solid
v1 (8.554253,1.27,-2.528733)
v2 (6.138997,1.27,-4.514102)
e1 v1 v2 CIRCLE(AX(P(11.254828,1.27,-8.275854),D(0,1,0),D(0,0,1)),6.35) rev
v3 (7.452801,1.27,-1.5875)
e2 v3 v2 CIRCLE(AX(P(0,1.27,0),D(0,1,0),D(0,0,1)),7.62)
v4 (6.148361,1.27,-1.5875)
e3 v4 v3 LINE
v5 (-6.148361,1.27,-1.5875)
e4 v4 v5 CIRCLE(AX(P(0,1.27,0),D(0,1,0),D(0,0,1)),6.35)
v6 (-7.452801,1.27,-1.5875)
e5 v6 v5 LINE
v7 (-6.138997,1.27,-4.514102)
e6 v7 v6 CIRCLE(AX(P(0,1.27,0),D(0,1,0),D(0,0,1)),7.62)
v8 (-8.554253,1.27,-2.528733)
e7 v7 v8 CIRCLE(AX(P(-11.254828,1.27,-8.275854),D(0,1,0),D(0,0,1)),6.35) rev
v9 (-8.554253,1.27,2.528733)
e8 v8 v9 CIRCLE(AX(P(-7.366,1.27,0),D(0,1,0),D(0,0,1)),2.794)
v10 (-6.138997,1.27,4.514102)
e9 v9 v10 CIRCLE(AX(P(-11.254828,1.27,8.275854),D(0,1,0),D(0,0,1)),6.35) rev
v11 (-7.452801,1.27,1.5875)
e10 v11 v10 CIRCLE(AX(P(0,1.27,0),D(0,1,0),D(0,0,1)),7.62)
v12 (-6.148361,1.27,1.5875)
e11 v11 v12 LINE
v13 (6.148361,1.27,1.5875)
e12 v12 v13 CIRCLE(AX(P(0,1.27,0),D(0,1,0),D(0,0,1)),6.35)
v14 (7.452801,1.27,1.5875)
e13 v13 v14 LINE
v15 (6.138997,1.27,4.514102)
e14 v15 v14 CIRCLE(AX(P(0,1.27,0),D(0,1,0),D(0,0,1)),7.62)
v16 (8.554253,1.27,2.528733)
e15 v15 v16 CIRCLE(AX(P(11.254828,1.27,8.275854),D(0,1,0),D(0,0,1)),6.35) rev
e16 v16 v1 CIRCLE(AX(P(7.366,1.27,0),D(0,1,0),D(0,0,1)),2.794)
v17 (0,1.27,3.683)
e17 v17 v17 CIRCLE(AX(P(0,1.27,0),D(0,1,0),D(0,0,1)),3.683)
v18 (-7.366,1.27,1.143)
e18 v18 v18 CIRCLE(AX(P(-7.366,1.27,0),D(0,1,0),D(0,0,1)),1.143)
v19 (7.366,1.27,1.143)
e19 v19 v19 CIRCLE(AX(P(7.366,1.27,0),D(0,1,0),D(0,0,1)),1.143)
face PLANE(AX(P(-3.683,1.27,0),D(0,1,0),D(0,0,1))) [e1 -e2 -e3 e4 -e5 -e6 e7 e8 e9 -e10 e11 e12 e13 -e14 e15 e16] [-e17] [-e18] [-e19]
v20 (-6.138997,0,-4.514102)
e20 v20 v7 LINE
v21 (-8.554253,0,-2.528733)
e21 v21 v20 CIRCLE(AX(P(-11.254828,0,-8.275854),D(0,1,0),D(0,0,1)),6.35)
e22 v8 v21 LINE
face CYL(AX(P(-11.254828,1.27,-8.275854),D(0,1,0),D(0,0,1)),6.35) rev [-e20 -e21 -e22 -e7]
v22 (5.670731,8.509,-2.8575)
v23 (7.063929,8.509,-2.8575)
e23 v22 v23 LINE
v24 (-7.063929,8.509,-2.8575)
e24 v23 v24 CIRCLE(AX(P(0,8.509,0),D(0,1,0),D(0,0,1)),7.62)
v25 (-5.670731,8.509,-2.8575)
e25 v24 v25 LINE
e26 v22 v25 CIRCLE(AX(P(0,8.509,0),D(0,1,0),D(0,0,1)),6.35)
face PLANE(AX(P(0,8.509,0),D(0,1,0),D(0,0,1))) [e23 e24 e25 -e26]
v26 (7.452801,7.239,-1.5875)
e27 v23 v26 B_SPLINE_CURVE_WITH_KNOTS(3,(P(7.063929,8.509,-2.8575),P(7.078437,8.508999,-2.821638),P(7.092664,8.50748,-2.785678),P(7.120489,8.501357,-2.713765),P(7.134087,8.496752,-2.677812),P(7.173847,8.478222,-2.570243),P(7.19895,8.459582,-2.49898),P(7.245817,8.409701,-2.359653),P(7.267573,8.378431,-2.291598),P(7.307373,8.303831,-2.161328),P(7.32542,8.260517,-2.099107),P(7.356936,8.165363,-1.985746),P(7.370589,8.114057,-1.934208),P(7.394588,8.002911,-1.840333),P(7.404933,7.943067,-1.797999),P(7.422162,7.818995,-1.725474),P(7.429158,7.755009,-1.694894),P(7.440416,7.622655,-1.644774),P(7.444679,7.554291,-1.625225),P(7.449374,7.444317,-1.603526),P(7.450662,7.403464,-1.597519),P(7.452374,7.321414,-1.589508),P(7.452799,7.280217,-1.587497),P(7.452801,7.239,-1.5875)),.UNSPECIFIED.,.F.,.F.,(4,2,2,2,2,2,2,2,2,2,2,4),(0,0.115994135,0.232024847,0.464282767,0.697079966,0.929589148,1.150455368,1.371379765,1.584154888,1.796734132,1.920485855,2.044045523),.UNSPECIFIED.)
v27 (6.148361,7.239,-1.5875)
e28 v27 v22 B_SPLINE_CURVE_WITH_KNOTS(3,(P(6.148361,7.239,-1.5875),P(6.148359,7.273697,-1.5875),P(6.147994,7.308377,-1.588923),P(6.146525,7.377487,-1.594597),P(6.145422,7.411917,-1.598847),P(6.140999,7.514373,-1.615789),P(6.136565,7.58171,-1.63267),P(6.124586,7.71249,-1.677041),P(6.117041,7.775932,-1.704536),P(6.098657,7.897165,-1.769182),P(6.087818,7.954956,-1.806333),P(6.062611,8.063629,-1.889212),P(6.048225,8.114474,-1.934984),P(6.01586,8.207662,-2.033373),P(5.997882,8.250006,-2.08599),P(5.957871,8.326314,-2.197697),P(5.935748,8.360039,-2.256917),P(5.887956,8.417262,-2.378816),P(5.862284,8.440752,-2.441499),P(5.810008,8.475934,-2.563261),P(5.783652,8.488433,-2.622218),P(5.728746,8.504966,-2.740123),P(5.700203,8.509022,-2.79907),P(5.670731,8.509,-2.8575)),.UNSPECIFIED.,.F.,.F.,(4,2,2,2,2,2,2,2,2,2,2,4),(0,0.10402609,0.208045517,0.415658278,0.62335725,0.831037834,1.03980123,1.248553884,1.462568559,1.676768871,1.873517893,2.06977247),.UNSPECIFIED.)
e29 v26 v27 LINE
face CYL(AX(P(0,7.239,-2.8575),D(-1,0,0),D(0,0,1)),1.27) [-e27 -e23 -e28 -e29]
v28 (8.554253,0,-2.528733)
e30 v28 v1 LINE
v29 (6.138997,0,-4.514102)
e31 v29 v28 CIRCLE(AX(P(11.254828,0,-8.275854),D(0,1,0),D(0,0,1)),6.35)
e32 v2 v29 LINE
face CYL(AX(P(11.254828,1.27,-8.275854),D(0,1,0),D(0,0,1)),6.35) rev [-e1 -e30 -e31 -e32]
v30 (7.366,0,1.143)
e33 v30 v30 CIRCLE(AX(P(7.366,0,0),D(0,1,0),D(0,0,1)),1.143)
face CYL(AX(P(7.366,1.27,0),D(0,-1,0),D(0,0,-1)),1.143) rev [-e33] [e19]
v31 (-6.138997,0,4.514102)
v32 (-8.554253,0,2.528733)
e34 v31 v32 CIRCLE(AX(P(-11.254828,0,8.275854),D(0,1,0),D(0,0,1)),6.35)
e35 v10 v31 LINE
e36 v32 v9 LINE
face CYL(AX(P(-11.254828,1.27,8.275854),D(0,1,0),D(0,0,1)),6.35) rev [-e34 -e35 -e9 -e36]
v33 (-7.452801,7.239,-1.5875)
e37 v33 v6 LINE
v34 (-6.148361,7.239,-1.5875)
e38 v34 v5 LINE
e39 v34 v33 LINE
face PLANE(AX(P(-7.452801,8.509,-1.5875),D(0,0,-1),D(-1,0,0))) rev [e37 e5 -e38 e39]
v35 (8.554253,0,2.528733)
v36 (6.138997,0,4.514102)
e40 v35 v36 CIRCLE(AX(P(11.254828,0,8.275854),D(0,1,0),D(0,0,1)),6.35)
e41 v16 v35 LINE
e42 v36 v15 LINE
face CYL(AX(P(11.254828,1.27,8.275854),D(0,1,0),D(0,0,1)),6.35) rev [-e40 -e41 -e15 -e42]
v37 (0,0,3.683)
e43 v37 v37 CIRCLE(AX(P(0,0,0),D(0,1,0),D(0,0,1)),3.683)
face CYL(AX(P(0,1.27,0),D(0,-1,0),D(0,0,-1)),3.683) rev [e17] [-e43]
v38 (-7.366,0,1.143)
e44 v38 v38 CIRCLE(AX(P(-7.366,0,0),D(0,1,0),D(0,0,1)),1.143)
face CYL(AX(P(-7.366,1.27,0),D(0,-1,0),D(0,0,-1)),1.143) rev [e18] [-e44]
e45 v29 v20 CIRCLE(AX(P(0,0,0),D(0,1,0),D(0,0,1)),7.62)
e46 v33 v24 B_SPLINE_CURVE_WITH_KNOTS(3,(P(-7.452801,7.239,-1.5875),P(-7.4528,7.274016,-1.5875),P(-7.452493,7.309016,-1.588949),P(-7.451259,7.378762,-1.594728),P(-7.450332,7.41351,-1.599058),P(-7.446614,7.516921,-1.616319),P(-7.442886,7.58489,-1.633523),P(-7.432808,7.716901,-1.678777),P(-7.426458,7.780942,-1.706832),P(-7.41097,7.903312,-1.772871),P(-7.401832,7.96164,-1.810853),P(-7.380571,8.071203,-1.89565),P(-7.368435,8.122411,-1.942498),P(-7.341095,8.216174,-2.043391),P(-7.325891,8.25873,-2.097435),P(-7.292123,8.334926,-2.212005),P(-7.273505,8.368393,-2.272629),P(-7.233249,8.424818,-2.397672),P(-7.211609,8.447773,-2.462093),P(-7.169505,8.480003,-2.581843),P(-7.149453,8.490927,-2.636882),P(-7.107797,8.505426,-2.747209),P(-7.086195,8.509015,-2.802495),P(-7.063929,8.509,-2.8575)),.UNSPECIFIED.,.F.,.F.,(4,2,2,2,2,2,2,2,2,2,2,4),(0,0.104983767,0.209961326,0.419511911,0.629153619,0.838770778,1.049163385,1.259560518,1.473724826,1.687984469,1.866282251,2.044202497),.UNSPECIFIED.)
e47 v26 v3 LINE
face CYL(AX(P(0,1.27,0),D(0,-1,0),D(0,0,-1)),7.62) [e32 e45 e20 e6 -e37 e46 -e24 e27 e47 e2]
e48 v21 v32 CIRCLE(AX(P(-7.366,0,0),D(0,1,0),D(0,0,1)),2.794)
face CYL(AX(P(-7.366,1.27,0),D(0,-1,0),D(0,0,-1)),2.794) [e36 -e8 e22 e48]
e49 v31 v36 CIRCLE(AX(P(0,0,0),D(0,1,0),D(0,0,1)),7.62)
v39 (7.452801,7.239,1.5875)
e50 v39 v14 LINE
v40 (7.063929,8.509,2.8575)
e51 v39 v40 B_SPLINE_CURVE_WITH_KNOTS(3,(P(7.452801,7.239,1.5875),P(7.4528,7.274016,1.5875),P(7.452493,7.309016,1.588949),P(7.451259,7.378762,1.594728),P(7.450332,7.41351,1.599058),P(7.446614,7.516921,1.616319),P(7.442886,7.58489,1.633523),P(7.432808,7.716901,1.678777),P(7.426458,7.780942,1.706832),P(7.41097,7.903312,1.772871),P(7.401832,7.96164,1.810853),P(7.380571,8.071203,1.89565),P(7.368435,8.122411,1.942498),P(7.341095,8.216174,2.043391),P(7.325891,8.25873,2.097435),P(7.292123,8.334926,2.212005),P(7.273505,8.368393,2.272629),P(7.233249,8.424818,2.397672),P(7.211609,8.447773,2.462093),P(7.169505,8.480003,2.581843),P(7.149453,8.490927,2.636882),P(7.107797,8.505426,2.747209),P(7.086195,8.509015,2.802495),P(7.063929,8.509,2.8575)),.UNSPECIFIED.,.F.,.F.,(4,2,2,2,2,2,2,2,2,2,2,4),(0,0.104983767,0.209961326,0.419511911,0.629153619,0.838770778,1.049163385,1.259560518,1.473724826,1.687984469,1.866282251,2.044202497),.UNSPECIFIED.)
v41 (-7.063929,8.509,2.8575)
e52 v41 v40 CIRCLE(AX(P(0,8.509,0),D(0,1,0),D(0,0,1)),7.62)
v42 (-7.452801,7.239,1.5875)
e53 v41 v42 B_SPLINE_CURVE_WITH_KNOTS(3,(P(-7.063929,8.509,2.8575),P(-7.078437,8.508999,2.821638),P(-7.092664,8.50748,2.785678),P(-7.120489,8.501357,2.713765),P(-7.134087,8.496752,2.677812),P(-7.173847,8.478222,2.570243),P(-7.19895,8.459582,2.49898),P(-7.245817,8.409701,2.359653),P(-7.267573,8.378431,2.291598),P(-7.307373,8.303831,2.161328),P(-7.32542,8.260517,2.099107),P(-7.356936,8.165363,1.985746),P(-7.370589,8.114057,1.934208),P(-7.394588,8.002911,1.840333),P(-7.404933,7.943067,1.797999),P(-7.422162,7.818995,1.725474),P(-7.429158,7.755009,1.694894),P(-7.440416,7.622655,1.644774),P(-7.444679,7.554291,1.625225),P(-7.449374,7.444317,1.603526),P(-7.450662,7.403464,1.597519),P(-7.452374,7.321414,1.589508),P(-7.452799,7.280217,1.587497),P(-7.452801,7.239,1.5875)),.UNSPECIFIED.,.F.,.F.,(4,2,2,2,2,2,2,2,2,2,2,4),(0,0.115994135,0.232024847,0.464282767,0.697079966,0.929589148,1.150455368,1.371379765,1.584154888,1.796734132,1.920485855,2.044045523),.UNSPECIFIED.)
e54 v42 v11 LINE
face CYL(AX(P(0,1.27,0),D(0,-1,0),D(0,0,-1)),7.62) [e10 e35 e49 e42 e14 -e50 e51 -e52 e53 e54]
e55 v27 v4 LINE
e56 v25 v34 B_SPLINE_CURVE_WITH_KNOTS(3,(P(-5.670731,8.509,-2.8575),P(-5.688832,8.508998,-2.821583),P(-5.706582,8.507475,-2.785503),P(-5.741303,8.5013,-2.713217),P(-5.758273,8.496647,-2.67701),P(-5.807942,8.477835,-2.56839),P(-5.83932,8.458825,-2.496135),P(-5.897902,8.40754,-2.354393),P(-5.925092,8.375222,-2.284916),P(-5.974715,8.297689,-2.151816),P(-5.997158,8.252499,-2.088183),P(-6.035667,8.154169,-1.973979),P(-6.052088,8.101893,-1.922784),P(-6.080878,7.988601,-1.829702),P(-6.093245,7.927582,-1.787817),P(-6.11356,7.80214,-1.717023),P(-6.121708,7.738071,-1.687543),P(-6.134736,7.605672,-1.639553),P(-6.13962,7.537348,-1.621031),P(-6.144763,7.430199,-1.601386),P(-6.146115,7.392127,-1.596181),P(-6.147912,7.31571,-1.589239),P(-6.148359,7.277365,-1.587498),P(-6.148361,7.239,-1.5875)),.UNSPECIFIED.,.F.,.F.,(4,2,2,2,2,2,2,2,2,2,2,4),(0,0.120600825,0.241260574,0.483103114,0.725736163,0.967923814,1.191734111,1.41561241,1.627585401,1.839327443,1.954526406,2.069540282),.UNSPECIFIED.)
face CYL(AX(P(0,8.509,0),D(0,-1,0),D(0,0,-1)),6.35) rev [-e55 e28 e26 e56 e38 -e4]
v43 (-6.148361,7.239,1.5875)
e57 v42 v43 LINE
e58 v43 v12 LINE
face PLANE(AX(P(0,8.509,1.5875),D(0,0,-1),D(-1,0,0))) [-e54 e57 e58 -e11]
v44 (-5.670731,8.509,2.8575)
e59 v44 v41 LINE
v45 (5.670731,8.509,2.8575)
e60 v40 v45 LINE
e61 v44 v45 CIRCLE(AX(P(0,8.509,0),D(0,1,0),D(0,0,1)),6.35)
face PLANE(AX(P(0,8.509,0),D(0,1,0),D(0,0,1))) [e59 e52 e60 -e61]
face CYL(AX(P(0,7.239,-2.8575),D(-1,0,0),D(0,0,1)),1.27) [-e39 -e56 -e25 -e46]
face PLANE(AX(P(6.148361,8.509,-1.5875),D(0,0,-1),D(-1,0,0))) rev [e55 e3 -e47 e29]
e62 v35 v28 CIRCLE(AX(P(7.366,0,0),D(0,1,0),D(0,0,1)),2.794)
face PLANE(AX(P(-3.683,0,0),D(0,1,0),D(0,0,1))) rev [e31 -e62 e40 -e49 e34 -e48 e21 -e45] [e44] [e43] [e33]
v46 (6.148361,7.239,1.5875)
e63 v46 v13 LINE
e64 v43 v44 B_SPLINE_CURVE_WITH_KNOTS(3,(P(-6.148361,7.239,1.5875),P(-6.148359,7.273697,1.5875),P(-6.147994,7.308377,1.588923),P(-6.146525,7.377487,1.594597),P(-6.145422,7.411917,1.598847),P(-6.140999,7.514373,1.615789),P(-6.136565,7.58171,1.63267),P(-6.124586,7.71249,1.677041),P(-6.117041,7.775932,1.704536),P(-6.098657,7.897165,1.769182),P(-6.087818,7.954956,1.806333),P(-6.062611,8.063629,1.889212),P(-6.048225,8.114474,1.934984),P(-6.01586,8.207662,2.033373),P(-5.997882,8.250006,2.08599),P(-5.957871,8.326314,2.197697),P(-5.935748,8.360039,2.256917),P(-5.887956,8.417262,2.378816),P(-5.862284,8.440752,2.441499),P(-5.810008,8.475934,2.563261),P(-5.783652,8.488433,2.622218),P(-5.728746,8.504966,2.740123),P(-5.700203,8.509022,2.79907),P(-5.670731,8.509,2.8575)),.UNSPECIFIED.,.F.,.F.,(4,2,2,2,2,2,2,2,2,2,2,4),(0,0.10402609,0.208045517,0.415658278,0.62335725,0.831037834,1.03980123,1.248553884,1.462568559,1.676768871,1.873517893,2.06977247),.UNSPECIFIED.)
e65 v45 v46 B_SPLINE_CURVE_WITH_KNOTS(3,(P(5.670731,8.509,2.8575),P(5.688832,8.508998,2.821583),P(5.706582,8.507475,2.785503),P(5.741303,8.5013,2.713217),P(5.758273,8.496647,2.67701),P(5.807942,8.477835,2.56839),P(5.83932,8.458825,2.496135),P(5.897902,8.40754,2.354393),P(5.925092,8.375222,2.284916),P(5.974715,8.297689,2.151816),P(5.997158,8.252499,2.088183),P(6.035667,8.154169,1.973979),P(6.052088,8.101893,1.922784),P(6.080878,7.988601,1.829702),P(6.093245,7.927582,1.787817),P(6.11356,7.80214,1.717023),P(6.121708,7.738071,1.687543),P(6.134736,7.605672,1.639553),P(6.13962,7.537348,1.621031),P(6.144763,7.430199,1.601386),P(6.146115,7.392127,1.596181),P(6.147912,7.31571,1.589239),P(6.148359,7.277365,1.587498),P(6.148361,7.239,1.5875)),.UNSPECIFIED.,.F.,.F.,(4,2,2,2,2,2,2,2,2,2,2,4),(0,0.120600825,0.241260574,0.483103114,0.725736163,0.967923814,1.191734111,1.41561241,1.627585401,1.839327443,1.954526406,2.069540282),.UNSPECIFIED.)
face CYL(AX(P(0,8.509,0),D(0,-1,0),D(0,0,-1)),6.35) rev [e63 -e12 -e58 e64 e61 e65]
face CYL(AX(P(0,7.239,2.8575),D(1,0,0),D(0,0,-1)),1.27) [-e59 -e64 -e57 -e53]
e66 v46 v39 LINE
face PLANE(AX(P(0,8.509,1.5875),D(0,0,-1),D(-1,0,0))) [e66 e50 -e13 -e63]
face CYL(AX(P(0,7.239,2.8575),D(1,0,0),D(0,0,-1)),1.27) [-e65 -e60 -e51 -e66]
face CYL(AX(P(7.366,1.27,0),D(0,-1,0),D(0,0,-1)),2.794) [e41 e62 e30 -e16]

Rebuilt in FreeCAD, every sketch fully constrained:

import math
import FreeCAD as App
import Part
import Sketcher

V = App.Vector
Q = App.Units.Quantity


def edges_at(feature, points):
    """Names of the edges that pass closest to the given points."""
    edges = feature.Shape.Edges
    near = lambda p: min(range(len(edges)), key=lambda i: edges[i].distToShape(Part.Vertex(*p))[0])
    return sorted({f"Edge{near(p) + 1}" for p in points})

doc = App.newDocument("Part")
body = doc.addObject("PartDesign::Body", "Body")

sketch1 = body.newObject("Sketcher::SketchObject", "Sketch")
sketch1.AttachmentSupport = (doc.getObject("XZ_Plane"), [""])
sketch1.MapMode = "FlatFace"
sketch1.addGeometry([
    Part.ArcOfCircle(Part.Circle(V(-7.4, 0, 0), V(0, 0, 1), 2.8), math.radians(84), math.radians(276)),
    Part.ArcOfCircle(Part.Circle(V(0, 0, 0), V(0, 0, 1), 7.6), math.radians(21), math.radians(159)),
    Part.ArcOfCircle(Part.Circle(V(7.4, 0, 0), V(0, 0, 1), 2.8), math.radians(-96), math.radians(96)),
    Part.ArcOfCircle(Part.Circle(V(0, 0, 0), V(0, 0, 1), 7.6), math.radians(-159), math.radians(-21)),
    Part.Circle(V(-7.4, 0, 0), V(0, 0, 1), 1.1),
    Part.Circle(V(0, 0, 0), V(0, 0, 1), 3.7),
    Part.Circle(V(7.4, 0, 0), V(0, 0, 1), 1.1),
], False)
sketch1.addConstraint([
    Sketcher.Constraint("Coincident", 0, 1, 1, 2),
    Sketcher.Constraint("Coincident", 1, 1, 2, 2),
    Sketcher.Constraint("Coincident", 2, 1, 3, 2),
    Sketcher.Constraint("Coincident", 3, 1, 0, 2),
    Sketcher.Constraint("Coincident", 1, 3, -1, 1),
    Sketcher.Constraint("Coincident", 3, 3, -1, 1),
    Sketcher.Constraint("Coincident", 5, 3, -1, 1),
    Sketcher.Constraint("Coincident", 4, 3, 0, 3),
    Sketcher.Constraint("Coincident", 6, 3, 2, 3),
    Sketcher.Constraint("Equal", 0, 2),
    Sketcher.Constraint("Equal", 1, 3),
    Sketcher.Constraint("Equal", 4, 6),
    Sketcher.Constraint("Symmetric", 0, 3, 2, 3, -1, 1),
    Sketcher.Constraint("PointOnObject", 0, 3, -1),
    Sketcher.Constraint("Radius", 1, Q("0.3 in")),
    Sketcher.Constraint("Diameter", 4, Q("0.09 in")),
    Sketcher.Constraint("Diameter", 5, Q("0.29 in")),
    Sketcher.Constraint("Radius", 0, Q("0.11 in")),
    Sketcher.Constraint("DistanceX", 0, 3, -1, 1, Q("0.29 in")),
])
pad1 = body.newObject("PartDesign::Pad", "Pad")
pad1.Profile = sketch1
pad1.Length = Q("0.05 in")
pad1.Reversed = True
doc.recompute()

fillet = body.newObject("PartDesign::Fillet", "Fillet")
fillet.Base = (pad1, edges_at(pad1, [
    (7.094, 0.635, -2.781),
    (7.094, 0.635, 2.781),
    (-7.094, 0.635, 2.781),
    (-7.094, 0.635, -2.781),
]))
fillet.Radius = Q("0.25 in")

sketch2 = body.newObject("Sketcher::SketchObject", "Sketch001")
sketch2.AttachmentSupport = (doc.getObject("XZ_Plane"), [""])
sketch2.MapMode = "FlatFace"
sketch2.AttachmentOffset = App.Placement(V(0, 0, -0.05 * 25.4), App.Rotation())
sketch2.addGeometry([
    Part.LineSegment(V(-6.1, 1.6, 0), V(-7.5, 1.6, 0)),
    Part.ArcOfCircle(Part.Circle(V(0, 0, 0), V(0, 0, 1), 7.6), math.radians(144), math.radians(168)),
    Part.ArcOfCircle(Part.Circle(V(0, 0, 0), V(0, 0, 1), 7.6), math.radians(36), math.radians(144)),
    Part.ArcOfCircle(Part.Circle(V(0, 0, 0), V(0, 0, 1), 7.6), math.radians(12), math.radians(36)),
    Part.LineSegment(V(7.5, 1.6, 0), V(6.1, 1.6, 0)),
    Part.ArcOfCircle(Part.Circle(V(0, 0, 0), V(0, 0, 1), 6.3), math.radians(14), math.radians(166)),
    Part.ArcOfCircle(Part.Circle(V(0, 0, 0), V(0, 0, 1), 6.3), math.radians(-166), math.radians(-14)),
    Part.LineSegment(V(6.1, -1.6, 0), V(7.5, -1.6, 0)),
    Part.ArcOfCircle(Part.Circle(V(0, 0, 0), V(0, 0, 1), 7.6), math.radians(-168), math.radians(-12)),
    Part.LineSegment(V(-7.5, -1.6, 0), V(-6.1, -1.6, 0)),
], False)
sketch2.addConstraint([
    Sketcher.Constraint("Coincident", 0, 2, 1, 2),
    Sketcher.Constraint("Tangent", 1, 1, 2, 2),
    Sketcher.Constraint("Tangent", 2, 1, 3, 2),
    Sketcher.Constraint("Coincident", 3, 1, 4, 1),
    Sketcher.Constraint("Coincident", 4, 2, 5, 1),
    Sketcher.Constraint("Coincident", 5, 2, 0, 1),
    Sketcher.Constraint("Coincident", 6, 2, 7, 1),
    Sketcher.Constraint("Coincident", 7, 2, 8, 2),
    Sketcher.Constraint("Coincident", 8, 1, 9, 1),
    Sketcher.Constraint("Coincident", 9, 2, 6, 1),
    Sketcher.Constraint("Horizontal", 0),
    Sketcher.Constraint("Horizontal", 4),
    Sketcher.Constraint("Horizontal", 7),
    Sketcher.Constraint("Horizontal", 9),
    Sketcher.Constraint("Coincident", 1, 3, -1, 1),
    Sketcher.Constraint("Coincident", 3, 3, -1, 1),
    Sketcher.Constraint("Coincident", 5, 3, -1, 1),
    Sketcher.Constraint("Coincident", 6, 3, -1, 1),
    Sketcher.Constraint("Coincident", 8, 3, -1, 1),
    Sketcher.Constraint("Equal", 5, 6),
    Sketcher.Constraint("Equal", 3, 8),
    Sketcher.Constraint("Horizontal", 1, 1, 2, 1),
    Sketcher.Constraint("Horizontal", 0, 2, 3, 1),
    Sketcher.Constraint("Horizontal", 7, 2, 8, 1),
    Sketcher.Constraint("Vertical", 4, 2, 6, 2),
    Sketcher.Constraint("Radius", 1, Q("0.3 in")),
    Sketcher.Constraint("Radius", 5, Q("0.25 in")),
    Sketcher.Constraint("DistanceY", -1, 1, 0, 2, Q("0.0625 in")),
    Sketcher.Constraint("DistanceX", 1, 1, -1, 1, Q("6.138997 mm")),
])
pad2 = body.newObject("PartDesign::Pad", "Pad001")
pad2.Profile = sketch2
pad2.Length = Q("0.285 in")
pad2.Reversed = True
doc.recompute()

fillet2 = body.newObject("PartDesign::Fillet", "Fillet001")
fillet2.Base = (pad2, edges_at(pad2, [
    (-6.801, 8.509, 1.587),
    (6.801, 8.509, 1.587),
    (6.801, 8.509, -1.587),
    (-6.801, 8.509, -1.587),
]))
fillet2.Radius = Q("0.05 in")

doc.recompute()
